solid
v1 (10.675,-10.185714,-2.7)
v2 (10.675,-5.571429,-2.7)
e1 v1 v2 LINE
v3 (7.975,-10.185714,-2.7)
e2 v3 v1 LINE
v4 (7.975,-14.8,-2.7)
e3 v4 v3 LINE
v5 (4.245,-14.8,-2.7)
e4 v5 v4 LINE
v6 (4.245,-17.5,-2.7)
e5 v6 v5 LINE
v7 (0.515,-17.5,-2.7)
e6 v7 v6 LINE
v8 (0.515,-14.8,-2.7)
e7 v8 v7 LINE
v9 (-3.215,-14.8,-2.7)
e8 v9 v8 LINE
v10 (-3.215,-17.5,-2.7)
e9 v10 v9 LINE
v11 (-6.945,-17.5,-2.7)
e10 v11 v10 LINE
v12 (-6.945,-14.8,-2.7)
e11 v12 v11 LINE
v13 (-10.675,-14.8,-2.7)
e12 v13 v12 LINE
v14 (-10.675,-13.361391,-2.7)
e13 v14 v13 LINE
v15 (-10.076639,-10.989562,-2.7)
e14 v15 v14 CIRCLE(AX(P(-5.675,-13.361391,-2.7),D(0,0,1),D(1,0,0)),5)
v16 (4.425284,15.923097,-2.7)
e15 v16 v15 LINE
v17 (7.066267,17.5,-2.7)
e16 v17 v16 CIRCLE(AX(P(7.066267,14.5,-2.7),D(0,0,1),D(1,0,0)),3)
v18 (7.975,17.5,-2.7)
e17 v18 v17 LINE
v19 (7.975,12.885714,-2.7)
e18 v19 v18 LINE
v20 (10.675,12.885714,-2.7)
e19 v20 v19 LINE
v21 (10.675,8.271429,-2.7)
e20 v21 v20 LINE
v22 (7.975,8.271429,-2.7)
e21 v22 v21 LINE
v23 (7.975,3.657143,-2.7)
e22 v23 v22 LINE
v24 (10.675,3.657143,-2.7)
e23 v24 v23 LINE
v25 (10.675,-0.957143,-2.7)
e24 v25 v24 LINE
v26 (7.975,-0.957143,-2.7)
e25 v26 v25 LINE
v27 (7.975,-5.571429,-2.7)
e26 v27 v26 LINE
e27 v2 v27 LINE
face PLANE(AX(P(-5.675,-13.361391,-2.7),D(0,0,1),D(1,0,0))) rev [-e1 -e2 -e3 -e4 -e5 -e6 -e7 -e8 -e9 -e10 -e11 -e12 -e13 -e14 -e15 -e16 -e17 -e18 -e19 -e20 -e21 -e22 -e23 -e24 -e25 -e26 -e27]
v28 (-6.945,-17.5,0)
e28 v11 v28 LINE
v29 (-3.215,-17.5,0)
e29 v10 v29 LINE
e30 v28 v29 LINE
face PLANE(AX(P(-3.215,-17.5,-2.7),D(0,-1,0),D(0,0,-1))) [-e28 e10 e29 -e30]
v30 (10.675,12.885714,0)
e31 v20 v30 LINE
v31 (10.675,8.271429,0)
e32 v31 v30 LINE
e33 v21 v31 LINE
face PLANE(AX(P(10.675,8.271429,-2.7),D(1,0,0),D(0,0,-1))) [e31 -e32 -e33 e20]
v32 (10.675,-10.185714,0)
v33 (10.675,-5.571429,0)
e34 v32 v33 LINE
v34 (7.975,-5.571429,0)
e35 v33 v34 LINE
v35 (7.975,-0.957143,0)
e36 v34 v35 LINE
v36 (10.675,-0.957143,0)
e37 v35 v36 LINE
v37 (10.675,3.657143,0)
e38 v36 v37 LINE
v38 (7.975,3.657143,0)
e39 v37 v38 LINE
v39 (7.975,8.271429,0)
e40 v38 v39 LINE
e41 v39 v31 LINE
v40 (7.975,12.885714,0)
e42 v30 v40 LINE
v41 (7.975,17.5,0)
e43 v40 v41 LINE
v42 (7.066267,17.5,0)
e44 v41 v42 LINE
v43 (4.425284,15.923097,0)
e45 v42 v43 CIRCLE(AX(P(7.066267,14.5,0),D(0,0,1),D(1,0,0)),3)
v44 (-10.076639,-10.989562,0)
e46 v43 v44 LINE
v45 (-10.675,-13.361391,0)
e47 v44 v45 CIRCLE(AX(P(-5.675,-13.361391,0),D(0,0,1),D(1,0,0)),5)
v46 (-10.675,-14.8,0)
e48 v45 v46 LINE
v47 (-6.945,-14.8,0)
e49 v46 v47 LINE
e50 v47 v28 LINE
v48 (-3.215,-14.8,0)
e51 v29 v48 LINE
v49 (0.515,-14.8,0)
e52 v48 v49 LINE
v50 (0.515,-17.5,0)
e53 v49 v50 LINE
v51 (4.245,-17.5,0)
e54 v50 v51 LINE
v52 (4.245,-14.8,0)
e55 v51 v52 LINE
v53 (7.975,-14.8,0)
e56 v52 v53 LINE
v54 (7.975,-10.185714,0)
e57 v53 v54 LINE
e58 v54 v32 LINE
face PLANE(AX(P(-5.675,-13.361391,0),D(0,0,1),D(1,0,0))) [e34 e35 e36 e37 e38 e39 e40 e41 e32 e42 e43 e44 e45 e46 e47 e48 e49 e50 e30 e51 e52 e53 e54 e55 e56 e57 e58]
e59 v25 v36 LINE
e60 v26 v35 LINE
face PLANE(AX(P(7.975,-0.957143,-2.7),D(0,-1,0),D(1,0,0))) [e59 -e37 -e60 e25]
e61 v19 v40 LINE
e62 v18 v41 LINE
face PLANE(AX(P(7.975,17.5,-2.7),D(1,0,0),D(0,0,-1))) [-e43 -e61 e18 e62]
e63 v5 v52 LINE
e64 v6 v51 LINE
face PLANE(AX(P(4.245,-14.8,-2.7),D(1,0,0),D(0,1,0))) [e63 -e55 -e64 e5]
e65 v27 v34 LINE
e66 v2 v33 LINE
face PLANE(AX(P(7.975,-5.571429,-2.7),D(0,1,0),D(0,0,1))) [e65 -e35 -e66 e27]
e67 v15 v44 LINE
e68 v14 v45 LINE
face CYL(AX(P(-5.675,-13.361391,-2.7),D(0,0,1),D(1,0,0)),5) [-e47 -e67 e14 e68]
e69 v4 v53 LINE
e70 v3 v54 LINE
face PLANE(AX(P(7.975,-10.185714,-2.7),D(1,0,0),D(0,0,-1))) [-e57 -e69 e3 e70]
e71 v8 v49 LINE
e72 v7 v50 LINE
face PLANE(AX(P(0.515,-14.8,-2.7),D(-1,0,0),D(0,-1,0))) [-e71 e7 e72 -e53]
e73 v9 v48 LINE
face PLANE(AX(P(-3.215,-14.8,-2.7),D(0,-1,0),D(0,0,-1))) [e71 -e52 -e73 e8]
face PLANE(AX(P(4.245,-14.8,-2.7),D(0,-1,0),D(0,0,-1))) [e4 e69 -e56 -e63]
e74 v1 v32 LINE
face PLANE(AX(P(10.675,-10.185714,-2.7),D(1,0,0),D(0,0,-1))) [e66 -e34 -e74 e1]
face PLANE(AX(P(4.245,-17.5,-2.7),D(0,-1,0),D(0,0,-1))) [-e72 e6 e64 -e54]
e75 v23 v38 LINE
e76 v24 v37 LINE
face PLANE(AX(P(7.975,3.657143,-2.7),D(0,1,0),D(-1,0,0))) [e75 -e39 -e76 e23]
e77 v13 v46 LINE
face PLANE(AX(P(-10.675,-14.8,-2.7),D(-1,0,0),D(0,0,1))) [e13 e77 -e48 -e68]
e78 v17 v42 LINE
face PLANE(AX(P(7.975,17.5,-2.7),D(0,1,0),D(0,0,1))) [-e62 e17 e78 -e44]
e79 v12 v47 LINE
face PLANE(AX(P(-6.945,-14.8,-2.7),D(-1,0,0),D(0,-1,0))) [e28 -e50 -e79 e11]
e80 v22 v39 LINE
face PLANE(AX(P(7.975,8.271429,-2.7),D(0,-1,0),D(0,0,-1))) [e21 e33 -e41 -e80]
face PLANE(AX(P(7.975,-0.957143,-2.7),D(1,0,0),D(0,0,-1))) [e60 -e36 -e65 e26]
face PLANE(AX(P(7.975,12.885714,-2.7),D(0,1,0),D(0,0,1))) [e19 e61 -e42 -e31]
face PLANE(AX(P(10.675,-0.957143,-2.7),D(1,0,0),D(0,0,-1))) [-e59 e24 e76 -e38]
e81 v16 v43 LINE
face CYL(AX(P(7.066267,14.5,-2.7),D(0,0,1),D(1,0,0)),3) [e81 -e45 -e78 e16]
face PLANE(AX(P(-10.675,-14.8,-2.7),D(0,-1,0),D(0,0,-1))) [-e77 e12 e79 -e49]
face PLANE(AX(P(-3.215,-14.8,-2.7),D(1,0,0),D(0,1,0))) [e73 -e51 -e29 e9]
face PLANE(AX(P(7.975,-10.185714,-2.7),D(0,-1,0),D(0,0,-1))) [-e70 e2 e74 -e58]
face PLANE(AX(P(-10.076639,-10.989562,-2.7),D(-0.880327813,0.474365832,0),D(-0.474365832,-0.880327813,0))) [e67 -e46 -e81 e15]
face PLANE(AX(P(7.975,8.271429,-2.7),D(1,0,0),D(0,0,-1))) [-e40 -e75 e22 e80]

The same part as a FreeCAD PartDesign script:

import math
import FreeCAD as App
import Part
import Sketcher

V = App.Vector
Q = App.Units.Quantity

doc = App.newDocument("Part")
body = doc.addObject("PartDesign::Body", "Body")

sketch1 = body.newObject("Sketcher::SketchObject", "Sketch")
sketch1.AttachmentSupport = (doc.getObject("XY_Plane"), [""])
sketch1.MapMode = "FlatFace"
sketch1.addGeometry(Part.LineSegment(V(7.975, 17.5, 0), V(7.066267, 17.5, 0)), False)
sketch1.addGeometry(Part.ArcOfCircle(Part.Circle(V(7.066267, 14.5, 0), V(0, 0, 1), 3), math.radians(90), math.radians(151.681933)), False)
sketch1.addGeometry(Part.LineSegment(V(4.425284, 15.923097, 0), V(-10.076639, -10.989562, 0)), False)
sketch1.addGeometry(Part.ArcOfCircle(Part.Circle(V(-5.675, -13.361391, 0), V(0, 0, 1), 5), math.radians(151.681933), math.radians(180)), False)
sketch1.addGeometry(Part.LineSegment(V(-10.675, -13.361391, 0), V(-10.675, -14.8, 0)), False)
sketch1.addGeometry(Part.LineSegment(V(-10.675, -14.8, 0), V(-6.945, -14.8, 0)), False)
sketch1.addGeometry(Part.LineSegment(V(-6.945, -14.8, 0), V(-6.945, -17.5, 0)), False)
sketch1.addGeometry(Part.LineSegment(V(-6.945, -17.5, 0), V(-3.215, -17.5, 0)), False)
sketch1.addGeometry(Part.LineSegment(V(-3.215, -17.5, 0), V(-3.215, -14.8, 0)), False)
sketch1.addGeometry(Part.LineSegment(V(-3.215, -14.8, 0), V(0.515, -14.8, 0)), False)
sketch1.addGeometry(Part.LineSegment(V(0.515, -14.8, 0), V(0.515, -17.5, 0)), False)
sketch1.addGeometry(Part.LineSegment(V(0.515, -17.5, 0), V(4.245, -17.5, 0)), False)
sketch1.addGeometry(Part.LineSegment(V(4.245, -17.5, 0), V(4.245, -14.8, 0)), False)
sketch1.addGeometry(Part.LineSegment(V(4.245, -14.8, 0), V(7.975, -14.8, 0)), False)
sketch1.addGeometry(Part.LineSegment(V(7.975, -14.8, 0), V(7.975, -10.185714, 0)), False)
sketch1.addGeometry(Part.LineSegment(V(7.975, -10.185714, 0), V(10.675, -10.185714, 0)), False)
sketch1.addGeometry(Part.LineSegment(V(10.675, -10.185714, 0), V(10.675, -5.571429, 0)), False)
sketch1.addGeometry(Part.LineSegment(V(10.675, -5.571429, 0), V(7.975, -5.571429, 0)), False)
sketch1.addGeometry(Part.LineSegment(V(7.975, -5.571429, 0), V(7.975, -0.957143, 0)), False)
sketch1.addGeometry(Part.LineSegment(V(7.975, -0.957143, 0), V(10.675, -0.957143, 0)), False)
sketch1.addGeometry(Part.LineSegment(V(10.675, -0.957143, 0), V(10.675, 3.657143, 0)), False)
sketch1.addGeometry(Part.LineSegment(V(10.675, 3.657143, 0), V(7.975, 3.657143, 0)), False)
sketch1.addGeometry(Part.LineSegment(V(7.975, 3.657143, 0), V(7.975, 8.271429, 0)), False)
sketch1.addGeometry(Part.LineSegment(V(7.975, 8.271429, 0), V(10.675, 8.271429, 0)), False)
sketch1.addGeometry(Part.LineSegment(V(10.675, 8.271429, 0), V(10.675, 12.885714, 0)), False)
sketch1.addGeometry(Part.LineSegment(V(10.675, 12.885714, 0), V(7.975, 12.885714, 0)), False)
sketch1.addGeometry(Part.LineSegment(V(7.975, 12.885714, 0), V(7.975, 17.5, 0)), False)
sketch1.addConstraint(Sketcher.Constraint("Tangent", 0, 2, 1, 1))
sketch1.addConstraint(Sketcher.Constraint("Tangent", 1, 2, 2, 1))
sketch1.addConstraint(Sketcher.Constraint("Tangent", 2, 2, 3, 1))
sketch1.addConstraint(Sketcher.Constraint("Tangent", 3, 2, 4, 1))
sketch1.addConstraint(Sketcher.Constraint("Coincident", 4, 2, 5, 1))
sketch1.addConstraint(Sketcher.Constraint("Coincident", 5, 2, 6, 1))
sketch1.addConstraint(Sketcher.Constraint("Coincident", 6, 2, 7, 1))
sketch1.addConstraint(Sketcher.Constraint("Coincident", 7, 2, 8, 1))
sketch1.addConstraint(Sketcher.Constraint("Coincident", 8, 2, 9, 1))
sketch1.addConstraint(Sketcher.Constraint("Coincident", 9, 2, 10, 1))
sketch1.addConstraint(Sketcher.Constraint("Coincident", 10, 2, 11, 1))
sketch1.addConstraint(Sketcher.Constraint("Coincident", 11, 2, 12, 1))
sketch1.addConstraint(Sketcher.Constraint("Coincident", 12, 2, 13, 1))
sketch1.addConstraint(Sketcher.Constraint("Coincident", 13, 2, 14, 1))
sketch1.addConstraint(Sketcher.Constraint("Coincident", 14, 2, 15, 1))
sketch1.addConstraint(Sketcher.Constraint("Coincident", 15, 2, 16, 1))
sketch1.addConstraint(Sketcher.Constraint("Coincident", 16, 2, 17, 1))
sketch1.addConstraint(Sketcher.Constraint("Coincident", 17, 2, 18, 1))
sketch1.addConstraint(Sketcher.Constraint("Coincident", 18, 2, 19, 1))
sketch1.addConstraint(Sketcher.Constraint("Coincident", 19, 2, 20, 1))
sketch1.addConstraint(Sketcher.Constraint("Coincident", 20, 2, 21, 1))
sketch1.addConstraint(Sketcher.Constraint("Coincident", 21, 2, 22, 1))
sketch1.addConstraint(Sketcher.Constraint("Coincident", 22, 2, 23, 1))
sketch1.addConstraint(Sketcher.Constraint("Coincident", 23, 2, 24, 1))
sketch1.addConstraint(Sketcher.Constraint("Coincident", 24, 2, 25, 1))
sketch1.addConstraint(Sketcher.Constraint("Coincident", 25, 2, 26, 1))
sketch1.addConstraint(Sketcher.Constraint("Coincident", 26, 2, 0, 1))
sketch1.addConstraint(Sketcher.Constraint("Horizontal", 0))
sketch1.addConstraint(Sketcher.Constraint("Vertical", 4))
sketch1.addConstraint(Sketcher.Constraint("Horizontal", 5))
sketch1.addConstraint(Sketcher.Constraint("Vertical", 6))
sketch1.addConstraint(Sketcher.Constraint("Horizontal", 7))
sketch1.addConstraint(Sketcher.Constraint("Vertical", 8))
sketch1.addConstraint(Sketcher.Constraint("Horizontal", 9))
sketch1.addConstraint(Sketcher.Constraint("Vertical", 10))
sketch1.addConstraint(Sketcher.Constraint("Horizontal", 11))
sketch1.addConstraint(Sketcher.Constraint("Vertical", 12))
sketch1.addConstraint(Sketcher.Constraint("Horizontal", 13))
sketch1.addConstraint(Sketcher.Constraint("Vertical", 14))
sketch1.addConstraint(Sketcher.Constraint("Horizontal", 15))
sketch1.addConstraint(Sketcher.Constraint("Vertical", 16))
sketch1.addConstraint(Sketcher.Constraint("Horizontal", 17))
sketch1.addConstraint(Sketcher.Constraint("Vertical", 18))
sketch1.addConstraint(Sketcher.Constraint("Horizontal", 19))
sketch1.addConstraint(Sketcher.Constraint("Vertical", 20))
sketch1.addConstraint(Sketcher.Constraint("Horizontal", 21))
sketch1.addConstraint(Sketcher.Constraint("Vertical", 22))
sketch1.addConstraint(Sketcher.Constraint("Horizontal", 23))
sketch1.addConstraint(Sketcher.Constraint("Vertical", 24))
sketch1.addConstraint(Sketcher.Constraint("Horizontal", 25))
sketch1.addConstraint(Sketcher.Constraint("Vertical", 26))
sketch1.addConstraint(Sketcher.Constraint("Horizontal", 5, 2, 8, 2))
sketch1.addConstraint(Sketcher.Constraint("Horizontal", 7, 2, 10, 2))
sketch1.addConstraint(Sketcher.Constraint("Horizontal", 9, 2, 12, 2))
sketch1.addConstraint(Sketcher.Constraint("Vertical", 14, 2, 17, 2))
sketch1.addConstraint(Sketcher.Constraint("Vertical", 16, 2, 19, 2))
sketch1.addConstraint(Sketcher.Constraint("Vertical", 18, 2, 21, 2))
sketch1.addConstraint(Sketcher.Constraint("Vertical", 20, 2, 23, 2))
sketch1.addConstraint(Sketcher.Constraint("Vertical", 22, 2, 25, 2))
sketch1.addConstraint(Sketcher.Constraint("Equal", 5, 7))
sketch1.addConstraint(Sketcher.Constraint("Equal", 7, 9))
sketch1.addConstraint(Sketcher.Constraint("Equal", 9, 11))
sketch1.addConstraint(Sketcher.Constraint("Equal", 11, 13))
sketch1.addConstraint(Sketcher.Constraint("Equal", 25, 6))
sketch1.addConstraint(Sketcher.Constraint("Equal", 14, 16))
sketch1.addConstraint(Sketcher.Constraint("Equal", 16, 18))
sketch1.addConstraint(Sketcher.Constraint("Equal", 18, 20))
sketch1.addConstraint(Sketcher.Constraint("Equal", 20, 22))
sketch1.addConstraint(Sketcher.Constraint("Equal", 22, 24))
sketch1.addConstraint(Sketcher.Constraint("Equal", 24, 26))
sketch1.addConstraint(Sketcher.Constraint("Radius", 1, Q("3 mm")))
sketch1.addConstraint(Sketcher.Constraint("Radius", 3, Q("5 mm")))
sketch1.addConstraint(Sketcher.Constraint("DistanceX", 15, 1, 15, 2, Q("2.7 mm")))
sketch1.addConstraint(Sketcher.Constraint("DistanceX", 5, 1, 5, 2, Q("3.73 mm")))
sketch1.addConstraint(Sketcher.Constraint("DistanceY", -1, 1, 1, 3, Q("14.5 mm")))
sketch1.addConstraint(Sketcher.Constraint("DistanceY", 4, 2, -1, 1, Q("14.8 mm")))
sketch1.addConstraint(Sketcher.Constraint("DistanceX", 3, 3, -1, 1, Q("5.675 mm")))
sketch1.addConstraint(Sketcher.Constraint("DistanceY", 4, 2, 4, 1, Q("1.438609 mm")))
sketch1.addConstraint(Sketcher.Constraint("Distance", 2, Q("30.57118 mm")))
pad1 = body.newObject("PartDesign::Pad", "Pad")
pad1.Profile = sketch1
pad1.Length = 2.7
pad1.Reversed = True

doc.recompute()
